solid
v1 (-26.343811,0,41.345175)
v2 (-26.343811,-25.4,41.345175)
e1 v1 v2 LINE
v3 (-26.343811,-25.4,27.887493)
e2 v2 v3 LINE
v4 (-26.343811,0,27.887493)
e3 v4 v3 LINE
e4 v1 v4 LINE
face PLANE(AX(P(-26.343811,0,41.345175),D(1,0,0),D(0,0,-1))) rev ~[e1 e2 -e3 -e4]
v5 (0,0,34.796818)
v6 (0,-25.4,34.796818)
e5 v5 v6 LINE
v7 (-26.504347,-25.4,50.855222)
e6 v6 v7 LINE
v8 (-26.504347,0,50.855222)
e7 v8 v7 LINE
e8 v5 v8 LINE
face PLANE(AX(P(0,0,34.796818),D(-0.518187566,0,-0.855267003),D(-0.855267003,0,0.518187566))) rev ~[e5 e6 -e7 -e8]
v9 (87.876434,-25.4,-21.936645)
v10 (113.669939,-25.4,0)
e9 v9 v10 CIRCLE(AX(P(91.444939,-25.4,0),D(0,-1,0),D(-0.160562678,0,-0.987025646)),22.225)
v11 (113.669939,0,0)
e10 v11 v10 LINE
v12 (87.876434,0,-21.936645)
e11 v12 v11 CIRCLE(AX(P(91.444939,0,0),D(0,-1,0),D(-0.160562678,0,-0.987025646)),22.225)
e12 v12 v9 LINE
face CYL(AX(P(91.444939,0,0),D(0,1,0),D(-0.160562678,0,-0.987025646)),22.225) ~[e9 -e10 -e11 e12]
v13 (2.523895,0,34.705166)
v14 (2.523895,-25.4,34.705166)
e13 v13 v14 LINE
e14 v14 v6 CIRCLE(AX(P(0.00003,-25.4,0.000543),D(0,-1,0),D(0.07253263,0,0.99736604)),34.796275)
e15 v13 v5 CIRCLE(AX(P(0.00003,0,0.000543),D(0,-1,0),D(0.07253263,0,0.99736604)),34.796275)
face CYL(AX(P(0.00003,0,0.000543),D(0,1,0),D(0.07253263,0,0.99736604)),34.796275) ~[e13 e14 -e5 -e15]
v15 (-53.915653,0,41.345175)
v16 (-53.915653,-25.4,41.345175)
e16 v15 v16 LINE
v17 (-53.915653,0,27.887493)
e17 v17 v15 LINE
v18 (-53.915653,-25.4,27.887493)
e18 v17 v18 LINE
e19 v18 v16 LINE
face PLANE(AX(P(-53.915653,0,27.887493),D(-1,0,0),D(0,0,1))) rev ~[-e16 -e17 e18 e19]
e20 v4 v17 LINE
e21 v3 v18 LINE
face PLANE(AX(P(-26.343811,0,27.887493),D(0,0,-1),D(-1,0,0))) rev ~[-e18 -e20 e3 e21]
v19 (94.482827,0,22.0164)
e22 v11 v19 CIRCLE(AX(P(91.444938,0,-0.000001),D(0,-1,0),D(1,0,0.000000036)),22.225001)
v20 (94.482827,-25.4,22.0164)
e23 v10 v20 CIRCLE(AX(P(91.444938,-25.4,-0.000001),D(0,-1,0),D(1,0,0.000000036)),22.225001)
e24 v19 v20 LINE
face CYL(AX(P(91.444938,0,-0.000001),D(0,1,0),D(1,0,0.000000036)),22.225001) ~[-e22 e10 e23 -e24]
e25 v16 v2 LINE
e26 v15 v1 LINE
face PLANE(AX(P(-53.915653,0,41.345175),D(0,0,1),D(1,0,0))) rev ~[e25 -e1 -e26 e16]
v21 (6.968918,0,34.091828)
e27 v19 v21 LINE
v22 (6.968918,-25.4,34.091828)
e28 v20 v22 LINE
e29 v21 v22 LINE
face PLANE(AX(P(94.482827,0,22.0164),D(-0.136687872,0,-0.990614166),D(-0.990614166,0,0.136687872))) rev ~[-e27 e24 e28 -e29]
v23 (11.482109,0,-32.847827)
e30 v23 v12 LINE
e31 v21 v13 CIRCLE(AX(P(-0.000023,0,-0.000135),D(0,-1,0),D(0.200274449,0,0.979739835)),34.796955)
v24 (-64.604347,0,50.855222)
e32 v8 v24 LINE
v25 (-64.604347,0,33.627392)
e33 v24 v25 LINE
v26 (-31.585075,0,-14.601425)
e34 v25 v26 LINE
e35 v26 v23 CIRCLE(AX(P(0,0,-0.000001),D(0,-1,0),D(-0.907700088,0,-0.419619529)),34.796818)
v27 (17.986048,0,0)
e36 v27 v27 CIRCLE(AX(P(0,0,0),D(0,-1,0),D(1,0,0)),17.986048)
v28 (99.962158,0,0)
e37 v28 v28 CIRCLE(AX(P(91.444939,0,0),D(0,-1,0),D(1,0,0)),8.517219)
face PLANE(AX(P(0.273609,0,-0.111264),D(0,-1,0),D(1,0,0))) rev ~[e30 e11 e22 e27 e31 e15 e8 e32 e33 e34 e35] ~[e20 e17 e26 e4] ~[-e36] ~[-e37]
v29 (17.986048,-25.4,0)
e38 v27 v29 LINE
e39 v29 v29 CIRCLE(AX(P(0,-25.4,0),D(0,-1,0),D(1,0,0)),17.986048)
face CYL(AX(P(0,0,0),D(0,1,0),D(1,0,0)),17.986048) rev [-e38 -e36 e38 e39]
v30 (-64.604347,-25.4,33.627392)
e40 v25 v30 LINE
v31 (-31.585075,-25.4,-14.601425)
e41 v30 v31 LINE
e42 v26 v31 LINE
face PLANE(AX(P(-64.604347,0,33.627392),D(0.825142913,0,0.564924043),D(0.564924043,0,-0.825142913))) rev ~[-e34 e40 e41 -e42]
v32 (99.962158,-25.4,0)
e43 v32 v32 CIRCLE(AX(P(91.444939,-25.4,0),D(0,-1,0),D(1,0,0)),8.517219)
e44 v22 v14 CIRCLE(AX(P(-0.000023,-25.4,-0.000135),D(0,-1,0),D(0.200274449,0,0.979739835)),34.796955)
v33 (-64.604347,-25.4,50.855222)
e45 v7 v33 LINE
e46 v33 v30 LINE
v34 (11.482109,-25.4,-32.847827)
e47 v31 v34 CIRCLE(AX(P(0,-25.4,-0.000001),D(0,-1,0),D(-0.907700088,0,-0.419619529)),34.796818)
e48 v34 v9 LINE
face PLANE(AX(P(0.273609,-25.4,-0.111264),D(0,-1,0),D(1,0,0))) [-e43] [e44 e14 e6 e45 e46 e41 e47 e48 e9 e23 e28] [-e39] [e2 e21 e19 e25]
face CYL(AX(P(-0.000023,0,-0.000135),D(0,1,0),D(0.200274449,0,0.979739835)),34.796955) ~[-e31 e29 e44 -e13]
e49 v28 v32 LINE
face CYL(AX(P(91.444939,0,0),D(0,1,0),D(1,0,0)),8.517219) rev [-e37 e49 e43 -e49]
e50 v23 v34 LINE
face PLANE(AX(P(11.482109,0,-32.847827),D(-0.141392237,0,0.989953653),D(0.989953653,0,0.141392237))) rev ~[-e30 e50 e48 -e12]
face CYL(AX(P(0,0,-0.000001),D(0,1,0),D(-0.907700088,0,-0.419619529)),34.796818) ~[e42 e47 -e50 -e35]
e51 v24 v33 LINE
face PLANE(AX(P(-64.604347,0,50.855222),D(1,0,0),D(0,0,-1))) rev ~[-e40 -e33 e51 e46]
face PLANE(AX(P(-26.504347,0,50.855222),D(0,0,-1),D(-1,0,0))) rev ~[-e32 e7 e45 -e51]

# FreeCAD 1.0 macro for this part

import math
import FreeCAD as App
import Part
import Sketcher

V = App.Vector
Q = App.Units.Quantity


def add_polygon(sketch, points):
    """Adds a closed chain of lines whose ends are joined by coincident constraints."""
    first, n = sketch.GeometryCount, len(points)
    for a, b in zip(points, points[1:] + points[:1]):
        sketch.addGeometry(Part.LineSegment(App.Vector(*a, 0), App.Vector(*b, 0)), False)
    for i in range(n):
        sketch.addConstraint(Sketcher.Constraint("Coincident", first + i, 2, first + (i + 1) % n, 1))

doc = App.newDocument("Part")
body = doc.addObject("PartDesign::Body", "Body")

# Sketch on XZ plane
sketch1 = body.newObject("Sketcher::SketchObject", "Sketch")
sketch1.AttachmentSupport = (doc.getObject("XZ_Plane"), [""])
sketch1.MapMode = "FlatFace"
sketch1.addGeometry(Part.ArcOfCircle(Part.Circle(V(-0.000023, -0.000135, 0), V(0, 0, 1), 34.796955), math.radians(78.446991), math.radians(85.840528)), False)  # 0
sketch1.addGeometry(Part.ArcOfCircle(Part.Circle(V(0.00003, 0.000543, 0), V(0, 0, 1), 34.796275), math.radians(85.840534), math.radians(90.000049)), False)  # 1
sketch1.addGeometry(Part.LineSegment(V(0, 34.796818, 0), V(-26.504347, 50.855222, 0)), False)  # 2
sketch1.addGeometry(Part.LineSegment(V(-26.504347, 50.855222, 0), V(-64.604347, 50.855222, 0)), False)  # 3
sketch1.addGeometry(Part.LineSegment(V(-64.604347, 50.855222, 0), V(-64.604347, 33.627392, 0)), False)  # 4
sketch1.addGeometry(Part.LineSegment(V(-64.604347, 33.627392, 0), V(-31.585075, -14.601425, 0)), False)  # 5
sketch1.addGeometry(Part.ArcOfCircle(Part.Circle(V(0, -0.000001, 0), V(0, 0, 1), 34.796818), math.radians(-155.189431), math.radians(-70.732691)), False)  # 6
sketch1.addGeometry(Part.LineSegment(V(11.482109, -32.847827, 0), V(87.876434, -21.936645, 0)), False)  # 7
sketch1.addGeometry(Part.ArcOfCircle(Part.Circle(V(91.444939, 0, 0), V(0, 0, 1), 22.225), math.radians(-99.239558), math.radians(0.000001)), False)  # 8
sketch1.addGeometry(Part.ArcOfCircle(Part.Circle(V(91.444938, -0.000001, 0), V(0, 0, 1), 22.225001), math.radians(0.000002), math.radians(82.143765)), False)  # 9
sketch1.addGeometry(Part.LineSegment(V(94.482827, 22.0164, 0), V(6.968918, 34.091828, 0)), False)  # 10
sketch1.addGeometry(Part.Circle(V(0, 0, 0), V(0, 0, 1), 17.986048), False)  # 11
sketch1.addGeometry(Part.Circle(V(91.444939, 0, 0), V(0, 0, 1), 8.517219), False)  # 12
add_polygon(sketch1, [(-26.343811, 41.345175), (-26.343811, 27.887493), (-53.915653, 27.887493), (-53.915653, 41.345175)])  # lines 13-16
sketch1.addConstraint([
    Sketcher.Constraint("Tangent", 0, 2, 1, 1),
    Sketcher.Constraint("Coincident", 1, 2, 2, 1),
    Sketcher.Constraint("Coincident", 2, 2, 3, 1),
    Sketcher.Constraint("Coincident", 3, 2, 4, 1),
    Sketcher.Constraint("Coincident", 4, 2, 5, 1),
    Sketcher.Constraint("Coincident", 5, 2, 6, 1),
    Sketcher.Constraint("Coincident", 6, 2, 7, 1),
    Sketcher.Constraint("Coincident", 7, 2, 8, 1),
    Sketcher.Constraint("Tangent", 8, 2, 9, 1),
    Sketcher.Constraint("Tangent", 9, 2, 10, 1),
    Sketcher.Constraint("Coincident", 10, 2, 0, 1),
    Sketcher.Constraint("Horizontal", 3),
    Sketcher.Constraint("Vertical", 4),
    Sketcher.Constraint("Vertical", 13),
    Sketcher.Constraint("Horizontal", 14),
    Sketcher.Constraint("Vertical", 15),
    Sketcher.Constraint("Horizontal", 16),
    Sketcher.Constraint("Coincident", 6, 3, -1, 1),
    Sketcher.Constraint("Coincident", 11, 3, -1, 1),
    Sketcher.Constraint("Coincident", 12, 3, 8, 3),
    Sketcher.Constraint("Equal", 8, 9),
    Sketcher.Constraint("PointOnObject", 8, 3, -1),
    Sketcher.Constraint("PointOnObject", 1, 2, -2),
    Sketcher.Constraint("PointOnObject", 8, 2, -1),
    Sketcher.Constraint("DistanceX", 3, 2, 3, 1, Q("1.5 in")),
    Sketcher.Constraint("Radius", 8, Q("0.875 in")),
    Sketcher.Constraint("Diameter", 12, Q("17.034438 mm")),
    Sketcher.Constraint("Diameter", 11, Q("35.972096 mm")),
    Sketcher.Constraint("Radius", 0, Q("34.796955 mm")),
    Sketcher.Constraint("Radius", 1, Q("34.796275 mm")),
    Sketcher.Constraint("Radius", 6, Q("34.796818 mm")),
    Sketcher.Constraint("DistanceX", 14, 2, 14, 1, Q("27.571842 mm")),
    Sketcher.Constraint("DistanceY", 4, 2, 4, 1, Q("17.22783 mm")),
    Sketcher.Constraint("DistanceY", 13, 2, 13, 1, Q("13.457682 mm")),
    Sketcher.Constraint("DistanceY", -1, 1, 9, 2, Q("22.0164 mm")),
    Sketcher.Constraint("DistanceY", 0, 3, 0, 2, Q("34.705301 mm")),
    Sketcher.Constraint("DistanceY", 6, 2, 5, 2, Q("18.246402 mm")),
    Sketcher.Constraint("DistanceY", 14, 2, 4, 2, Q("5.739899 mm")),
    Sketcher.Constraint("Distance", 2, Q("30.989559 mm")),
    Sketcher.Constraint("DistanceX", -1, 1, 8, 3, Q("91.444939 mm")),
    Sketcher.Constraint("DistanceY", -1, 1, 2, 2, Q("50.855222 mm")),
    Sketcher.Constraint("DistanceX", -1, 1, 6, 2, Q("11.482109 mm")),
    Sketcher.Constraint("DistanceX", -1, 1, 10, 2, Q("6.968918 mm")),
    Sketcher.Constraint("DistanceX", 13, 2, -1, 1, Q("26.343811 mm")),
    Sketcher.Constraint("DistanceX", 1, 3, 8, 3, Q("91.44491 mm")),
    Sketcher.Constraint("DistanceY", 6, 2, 7, 2, Q("10.911182 mm")),
])
pad1 = body.newObject("PartDesign::Pad", "Pad")
pad1.Profile = sketch1
pad1.Length = Q("1 in")

doc.recompute()
